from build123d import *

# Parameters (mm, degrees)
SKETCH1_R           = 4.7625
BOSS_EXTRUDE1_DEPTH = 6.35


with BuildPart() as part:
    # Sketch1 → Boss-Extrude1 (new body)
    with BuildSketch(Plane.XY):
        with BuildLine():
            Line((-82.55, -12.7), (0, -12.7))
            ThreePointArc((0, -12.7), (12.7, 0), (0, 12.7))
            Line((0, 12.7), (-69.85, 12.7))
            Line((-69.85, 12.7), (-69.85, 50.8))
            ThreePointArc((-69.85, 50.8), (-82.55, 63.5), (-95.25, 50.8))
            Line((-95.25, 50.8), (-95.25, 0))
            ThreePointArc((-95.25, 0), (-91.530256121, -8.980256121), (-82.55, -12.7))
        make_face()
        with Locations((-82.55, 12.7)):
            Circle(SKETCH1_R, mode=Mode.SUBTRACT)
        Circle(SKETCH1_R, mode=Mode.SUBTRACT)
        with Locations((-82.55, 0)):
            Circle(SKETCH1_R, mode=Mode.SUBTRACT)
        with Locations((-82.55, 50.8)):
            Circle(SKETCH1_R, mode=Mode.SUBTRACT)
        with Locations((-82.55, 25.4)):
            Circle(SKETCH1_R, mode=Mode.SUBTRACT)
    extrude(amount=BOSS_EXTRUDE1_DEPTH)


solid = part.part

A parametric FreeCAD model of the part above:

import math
import FreeCAD as App
import Part
import Sketcher
Q = App.Units.Quantity

doc = App.newDocument("Part")
body = doc.addObject("PartDesign::Body", "Body")

sketch1 = body.newObject("Sketcher::SketchObject", "Sketch")
sketch1.AttachmentSupport = (doc.getObject("XY_Plane"), [""])
sketch1.MapMode = "FlatFace"
sketch1.addGeometry([
    Part.LineSegment(App.Vector(-82.5, -12.7, 0), App.Vector(0, -12.7, 0)),
    Part.ArcOfCircle(Part.Circle(App.Vector(0, 0, 0), App.Vector(0, 0, 1), 12.7), math.radians(-90), math.radians(90)),
    Part.LineSegment(App.Vector(0, 12.7, 0), App.Vector(-69.8, 12.7, 0)),
    Part.LineSegment(App.Vector(-69.8, 12.7, 0), App.Vector(-69.8, 50.8, 0)),
    Part.ArcOfCircle(Part.Circle(App.Vector(-82.5, 50.8, 0), App.Vector(0, 0, 1), 12.7), math.radians(0), math.radians(180)),
    Part.LineSegment(App.Vector(-95.2, 50.8, 0), App.Vector(-95.2, 0, 0)),
    Part.ArcOfCircle(Part.Circle(App.Vector(-82.5, 0, 0), App.Vector(0, 0, 1), 12.7), math.radians(180), math.radians(270)),
    Part.Circle(App.Vector(-82.5, 0, 0), App.Vector(0, 0, 1), 4.8),
    Part.Circle(App.Vector(-82.5, 12.7, 0), App.Vector(0, 0, 1), 4.8),
    Part.Circle(App.Vector(0, 0, 0), App.Vector(0, 0, 1), 4.8),
    Part.Circle(App.Vector(-82.5, 25.4, 0), App.Vector(0, 0, 1), 4.8),
    Part.Circle(App.Vector(-82.5, 50.8, 0), App.Vector(0, 0, 1), 4.8),
], False)
sketch1.addConstraint([
    Sketcher.Constraint("Tangent", 0, 2, 1, 1),
    Sketcher.Constraint("Tangent", 1, 2, 2, 1),
    Sketcher.Constraint("Coincident", 2, 2, 3, 1),
    Sketcher.Constraint("Tangent", 3, 2, 4, 1),
    Sketcher.Constraint("Tangent", 4, 2, 5, 1),
    Sketcher.Constraint("Tangent", 5, 2, 6, 1),
    Sketcher.Constraint("Tangent", 6, 2, 0, 1),
    Sketcher.Constraint("Horizontal", 0),
    Sketcher.Constraint("Horizontal", 2),
    Sketcher.Constraint("Vertical", 3),
    Sketcher.Constraint("Vertical", 5),
    Sketcher.Constraint("Coincident", 1, 3, -1, 1),
    Sketcher.Constraint("Coincident", 9, 3, -1, 1),
    Sketcher.Constraint("Coincident", 7, 3, 6, 3),
    Sketcher.Constraint("Coincident", 11, 3, 4, 3),
    Sketcher.Constraint("Equal", 1, 4),
    Sketcher.Constraint("Equal", 4, 6),
    Sketcher.Constraint("Equal", 7, 8),
    Sketcher.Constraint("Equal", 8, 9),
    Sketcher.Constraint("Equal", 9, 10),
    Sketcher.Constraint("Equal", 10, 11),
    Sketcher.Constraint("Horizontal", 8, 3, 1, 2),
    Sketcher.Constraint("Vertical", 7, 3, 8, 3),
    Sketcher.Constraint("Vertical", 8, 3, 10, 3),
    Sketcher.Constraint("Radius", 1, Q("0.5 in")),
    Sketcher.Constraint("DistanceY", 5, 2, 5, 1, Q("2 in")),
    Sketcher.Constraint("Diameter", 7, Q("0.375 in")),
    Sketcher.Constraint("DistanceY", -1, 1, 10, 3, Q("1 in")),
    Sketcher.Constraint("DistanceX", 0, 1, 0, 2, Q("3.25 in")),
])
pad1 = body.newObject("PartDesign::Pad", "Pad")
pad1.Profile = sketch1
pad1.Length = Q("0.25 in")

doc.recompute()
